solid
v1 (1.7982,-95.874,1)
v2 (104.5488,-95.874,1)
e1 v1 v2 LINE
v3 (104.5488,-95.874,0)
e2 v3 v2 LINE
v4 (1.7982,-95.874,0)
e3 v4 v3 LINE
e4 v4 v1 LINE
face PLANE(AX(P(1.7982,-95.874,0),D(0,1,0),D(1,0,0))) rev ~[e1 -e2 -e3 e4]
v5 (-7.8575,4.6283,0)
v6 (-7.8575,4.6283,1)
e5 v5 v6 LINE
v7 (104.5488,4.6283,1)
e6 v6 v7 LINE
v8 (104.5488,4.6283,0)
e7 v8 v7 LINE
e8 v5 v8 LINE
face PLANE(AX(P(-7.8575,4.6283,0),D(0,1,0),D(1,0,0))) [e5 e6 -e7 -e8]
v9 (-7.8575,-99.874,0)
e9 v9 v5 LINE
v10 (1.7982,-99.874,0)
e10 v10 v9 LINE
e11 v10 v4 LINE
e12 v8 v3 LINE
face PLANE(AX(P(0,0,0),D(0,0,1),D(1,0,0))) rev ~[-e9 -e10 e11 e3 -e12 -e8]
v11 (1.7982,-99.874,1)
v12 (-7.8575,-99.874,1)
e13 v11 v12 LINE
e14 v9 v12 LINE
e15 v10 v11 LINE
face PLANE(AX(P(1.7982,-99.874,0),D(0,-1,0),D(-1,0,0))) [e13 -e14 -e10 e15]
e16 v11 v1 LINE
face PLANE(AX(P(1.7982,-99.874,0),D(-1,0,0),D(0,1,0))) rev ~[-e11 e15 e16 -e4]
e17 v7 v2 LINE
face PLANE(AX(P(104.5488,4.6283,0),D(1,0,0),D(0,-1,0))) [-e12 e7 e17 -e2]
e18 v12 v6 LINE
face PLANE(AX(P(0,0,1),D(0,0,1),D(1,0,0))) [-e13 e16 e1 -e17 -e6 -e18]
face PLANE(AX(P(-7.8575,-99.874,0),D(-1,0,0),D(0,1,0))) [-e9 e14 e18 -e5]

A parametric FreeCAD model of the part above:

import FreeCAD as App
import Part
import Sketcher
Q = App.Units.Quantity


def add_polygon(sketch, points):
    """Adds a closed chain of lines whose ends are joined by coincident constraints."""
    first, n = sketch.GeometryCount, len(points)
    for a, b in zip(points, points[1:] + points[:1]):
        sketch.addGeometry(Part.LineSegment(App.Vector(*a, 0), App.Vector(*b, 0)), False)
    for i in range(n):
        sketch.addConstraint(Sketcher.Constraint("Coincident", first + i, 2, first + (i + 1) % n, 1))

doc = App.newDocument("Part")
params = doc.addObject("Spreadsheet::Sheet", "Params")
for row, (alias, value) in enumerate([
    ("sketch1_height", "4 mm"),
    ("pad1_length", "1 mm"),
], start=1):
    params.set(f"A{row}", alias)
    params.set(f"B{row}", "=" + value)
    params.setAlias(f"B{row}", alias)

body = doc.addObject("PartDesign::Body", "Body")

# Sketch on XY plane
sketch1 = body.newObject("Sketcher::SketchObject", "Sketch")
sketch1.AttachmentSupport = (doc.getObject("XY_Plane"), [""])
sketch1.MapMode = "FlatFace"
add_polygon(sketch1, [(-7.9, -99.9), (1.8, -99.9), (1.8, -95.9), (104.5, -95.9), (104.5, 4.6), (-7.9, 4.6)])  # lines 0-5
sketch1.addConstraint(Sketcher.Constraint("Horizontal", 0))
sketch1.addConstraint(Sketcher.Constraint("Vertical", 1))
sketch1.addConstraint(Sketcher.Constraint("Horizontal", 2))
sketch1.addConstraint(Sketcher.Constraint("Vertical", 3))
sketch1.addConstraint(Sketcher.Constraint("Horizontal", 4))
sketch1.addConstraint(Sketcher.Constraint("Vertical", 5))
sketch1.addConstraint(Sketcher.Constraint("DistanceY", 1, 1, 1, 2, Q("4 mm")))
sketch1.addConstraint(Sketcher.Constraint("DistanceX", 0, 1, 0, 2, Q("9.6557 mm")))
sketch1.addConstraint(Sketcher.Constraint("DistanceX", 2, 1, 2, 2, Q("102.7506 mm")))
sketch1.addConstraint(Sketcher.Constraint("DistanceY", 3, 1, 3, 2, Q("100.5023 mm")))
sketch1.addConstraint(Sketcher.Constraint("DistanceY", 0, 2, -1, 1, Q("99.874 mm")))
sketch1.addConstraint(Sketcher.Constraint("DistanceX", -1, 1, 0, 2, Q("1.7982 mm")))
sketch1.setExpression("Constraints[12]", "Params.sketch1_height")
pad1 = body.newObject("PartDesign::Pad", "Pad")
pad1.Profile = sketch1
pad1.setExpression("Length", "Params.pad1_length")

doc.recompute()
